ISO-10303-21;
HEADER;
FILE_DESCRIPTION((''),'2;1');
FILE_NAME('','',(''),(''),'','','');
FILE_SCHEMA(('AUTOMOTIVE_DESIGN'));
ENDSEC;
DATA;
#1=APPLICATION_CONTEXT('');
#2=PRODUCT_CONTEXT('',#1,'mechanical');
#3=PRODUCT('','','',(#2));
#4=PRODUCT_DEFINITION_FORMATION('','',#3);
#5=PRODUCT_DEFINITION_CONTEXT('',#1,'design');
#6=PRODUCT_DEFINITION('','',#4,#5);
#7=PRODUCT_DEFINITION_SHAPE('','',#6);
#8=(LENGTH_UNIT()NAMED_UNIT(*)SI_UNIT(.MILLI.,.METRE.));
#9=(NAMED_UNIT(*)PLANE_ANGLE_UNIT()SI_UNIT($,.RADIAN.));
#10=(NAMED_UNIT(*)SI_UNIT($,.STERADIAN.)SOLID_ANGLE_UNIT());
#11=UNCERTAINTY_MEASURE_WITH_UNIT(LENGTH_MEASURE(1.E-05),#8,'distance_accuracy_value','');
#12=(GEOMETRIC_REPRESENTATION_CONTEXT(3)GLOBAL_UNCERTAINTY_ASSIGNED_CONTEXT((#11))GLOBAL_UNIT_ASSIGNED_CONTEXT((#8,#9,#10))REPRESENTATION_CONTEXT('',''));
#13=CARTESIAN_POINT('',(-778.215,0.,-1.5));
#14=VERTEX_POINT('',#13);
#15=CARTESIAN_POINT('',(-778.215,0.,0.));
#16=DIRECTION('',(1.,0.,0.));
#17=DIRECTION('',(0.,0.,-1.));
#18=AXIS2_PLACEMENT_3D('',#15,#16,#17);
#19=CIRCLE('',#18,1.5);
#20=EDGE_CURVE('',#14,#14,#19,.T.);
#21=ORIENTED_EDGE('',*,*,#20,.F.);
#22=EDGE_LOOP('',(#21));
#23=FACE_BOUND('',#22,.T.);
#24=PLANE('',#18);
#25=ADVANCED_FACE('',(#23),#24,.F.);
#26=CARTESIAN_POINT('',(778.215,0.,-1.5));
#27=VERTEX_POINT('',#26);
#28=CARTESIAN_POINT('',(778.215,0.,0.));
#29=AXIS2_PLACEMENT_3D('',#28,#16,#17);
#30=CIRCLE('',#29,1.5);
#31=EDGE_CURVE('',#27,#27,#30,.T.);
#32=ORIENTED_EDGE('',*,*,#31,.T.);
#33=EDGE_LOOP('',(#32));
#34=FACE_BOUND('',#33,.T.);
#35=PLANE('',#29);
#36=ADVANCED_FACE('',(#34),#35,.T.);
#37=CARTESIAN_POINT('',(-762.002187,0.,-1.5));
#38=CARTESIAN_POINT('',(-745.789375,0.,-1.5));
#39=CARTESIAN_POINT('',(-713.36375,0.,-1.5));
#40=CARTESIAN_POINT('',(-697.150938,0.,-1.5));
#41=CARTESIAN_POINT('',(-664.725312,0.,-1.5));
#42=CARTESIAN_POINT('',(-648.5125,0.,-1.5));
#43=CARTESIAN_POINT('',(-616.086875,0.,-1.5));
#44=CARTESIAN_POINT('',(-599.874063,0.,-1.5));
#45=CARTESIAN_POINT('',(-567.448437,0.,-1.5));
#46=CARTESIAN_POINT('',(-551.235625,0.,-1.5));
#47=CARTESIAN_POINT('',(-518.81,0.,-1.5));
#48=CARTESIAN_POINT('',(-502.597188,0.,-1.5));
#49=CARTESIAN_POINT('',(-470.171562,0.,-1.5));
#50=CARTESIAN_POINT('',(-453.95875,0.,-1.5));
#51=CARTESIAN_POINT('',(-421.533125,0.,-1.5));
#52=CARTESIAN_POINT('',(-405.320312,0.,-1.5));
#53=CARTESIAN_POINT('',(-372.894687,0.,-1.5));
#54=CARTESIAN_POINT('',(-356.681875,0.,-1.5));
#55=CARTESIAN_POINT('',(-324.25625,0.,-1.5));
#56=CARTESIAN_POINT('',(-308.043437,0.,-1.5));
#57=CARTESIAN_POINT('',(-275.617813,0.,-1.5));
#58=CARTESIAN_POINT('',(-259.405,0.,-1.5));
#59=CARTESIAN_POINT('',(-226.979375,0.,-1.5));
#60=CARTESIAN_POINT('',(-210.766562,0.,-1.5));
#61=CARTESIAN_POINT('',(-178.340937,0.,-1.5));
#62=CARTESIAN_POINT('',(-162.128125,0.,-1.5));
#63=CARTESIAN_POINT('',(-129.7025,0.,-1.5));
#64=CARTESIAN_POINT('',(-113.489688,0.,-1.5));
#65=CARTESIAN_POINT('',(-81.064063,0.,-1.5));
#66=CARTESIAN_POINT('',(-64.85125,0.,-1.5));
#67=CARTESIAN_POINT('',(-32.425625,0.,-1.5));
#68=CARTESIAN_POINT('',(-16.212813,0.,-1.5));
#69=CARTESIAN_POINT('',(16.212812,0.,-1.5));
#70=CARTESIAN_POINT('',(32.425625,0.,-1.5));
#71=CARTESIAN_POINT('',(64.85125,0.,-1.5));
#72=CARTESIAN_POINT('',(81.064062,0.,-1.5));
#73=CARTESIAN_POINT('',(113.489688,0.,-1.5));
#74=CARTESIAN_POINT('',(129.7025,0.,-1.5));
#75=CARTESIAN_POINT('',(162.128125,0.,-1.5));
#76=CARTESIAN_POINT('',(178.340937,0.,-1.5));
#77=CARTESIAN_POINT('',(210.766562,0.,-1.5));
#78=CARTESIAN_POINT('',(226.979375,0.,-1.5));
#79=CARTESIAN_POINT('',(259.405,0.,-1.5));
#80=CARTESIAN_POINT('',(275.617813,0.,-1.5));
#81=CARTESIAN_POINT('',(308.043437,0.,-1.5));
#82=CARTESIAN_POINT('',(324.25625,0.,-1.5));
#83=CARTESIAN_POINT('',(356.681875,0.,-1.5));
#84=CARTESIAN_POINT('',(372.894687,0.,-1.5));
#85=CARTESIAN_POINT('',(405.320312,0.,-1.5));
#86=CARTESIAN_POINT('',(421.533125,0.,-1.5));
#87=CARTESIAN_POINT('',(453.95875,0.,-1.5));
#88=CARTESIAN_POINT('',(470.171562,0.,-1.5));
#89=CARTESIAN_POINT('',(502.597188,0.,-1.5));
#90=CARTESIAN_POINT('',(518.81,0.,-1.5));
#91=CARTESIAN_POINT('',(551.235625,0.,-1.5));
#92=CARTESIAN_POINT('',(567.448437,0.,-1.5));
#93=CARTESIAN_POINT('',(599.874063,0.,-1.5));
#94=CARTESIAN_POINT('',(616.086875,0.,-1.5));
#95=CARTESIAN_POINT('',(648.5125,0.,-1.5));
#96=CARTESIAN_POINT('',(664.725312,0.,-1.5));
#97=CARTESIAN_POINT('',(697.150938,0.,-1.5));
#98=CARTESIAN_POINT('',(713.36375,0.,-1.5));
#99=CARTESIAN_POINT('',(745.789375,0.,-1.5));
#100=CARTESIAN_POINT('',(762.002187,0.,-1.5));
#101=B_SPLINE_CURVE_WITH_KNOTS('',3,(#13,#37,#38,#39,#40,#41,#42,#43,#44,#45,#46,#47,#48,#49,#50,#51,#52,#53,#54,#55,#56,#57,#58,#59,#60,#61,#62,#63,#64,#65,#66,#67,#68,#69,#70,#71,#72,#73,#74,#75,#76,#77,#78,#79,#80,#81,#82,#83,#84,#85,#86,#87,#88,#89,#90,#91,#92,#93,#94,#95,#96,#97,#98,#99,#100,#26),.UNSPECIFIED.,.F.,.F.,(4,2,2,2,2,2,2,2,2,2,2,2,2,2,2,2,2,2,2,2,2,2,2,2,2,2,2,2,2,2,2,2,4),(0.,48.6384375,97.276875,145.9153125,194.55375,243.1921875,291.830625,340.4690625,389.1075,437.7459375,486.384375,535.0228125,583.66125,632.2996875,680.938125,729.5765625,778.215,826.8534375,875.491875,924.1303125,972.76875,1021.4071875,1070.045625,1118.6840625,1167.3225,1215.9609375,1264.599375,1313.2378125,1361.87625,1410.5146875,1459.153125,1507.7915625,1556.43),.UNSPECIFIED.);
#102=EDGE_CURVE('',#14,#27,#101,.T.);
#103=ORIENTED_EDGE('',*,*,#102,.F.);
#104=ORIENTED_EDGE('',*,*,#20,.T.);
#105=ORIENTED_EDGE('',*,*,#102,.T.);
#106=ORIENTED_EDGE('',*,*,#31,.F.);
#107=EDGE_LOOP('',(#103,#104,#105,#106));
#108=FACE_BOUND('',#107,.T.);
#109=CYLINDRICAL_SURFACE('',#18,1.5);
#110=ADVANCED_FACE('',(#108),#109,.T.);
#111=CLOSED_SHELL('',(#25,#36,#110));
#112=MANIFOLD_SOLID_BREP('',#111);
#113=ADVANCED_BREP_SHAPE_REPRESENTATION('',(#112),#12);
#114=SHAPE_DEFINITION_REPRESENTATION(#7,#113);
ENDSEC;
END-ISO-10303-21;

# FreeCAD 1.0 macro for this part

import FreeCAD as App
import Part
import Sketcher

V = App.Vector
Q = App.Units.Quantity

doc = App.newDocument("Part")
body = doc.addObject("PartDesign::Body", "Body")

sketch1 = body.newObject("Sketcher::SketchObject", "Sketch")
sketch1.AttachmentSupport = (doc.getObject("YZ_Plane"), [""])
sketch1.MapMode = "FlatFace"
sketch1.addGeometry(Part.Circle(V(0, 0, 0), V(0, 0, 1), 1.5), False)
sketch1.addConstraint(Sketcher.Constraint("Coincident", 0, 3, -1, 1))
sketch1.addConstraint(Sketcher.Constraint("Diameter", 0, Q("3 mm")))
pad1 = body.newObject("PartDesign::Pad", "Pad")
pad1.Profile = sketch1
pad1.Type = "TwoLengths"
pad1.Length = 778.215
pad1.Length2 = 778.215

doc.recompute()
